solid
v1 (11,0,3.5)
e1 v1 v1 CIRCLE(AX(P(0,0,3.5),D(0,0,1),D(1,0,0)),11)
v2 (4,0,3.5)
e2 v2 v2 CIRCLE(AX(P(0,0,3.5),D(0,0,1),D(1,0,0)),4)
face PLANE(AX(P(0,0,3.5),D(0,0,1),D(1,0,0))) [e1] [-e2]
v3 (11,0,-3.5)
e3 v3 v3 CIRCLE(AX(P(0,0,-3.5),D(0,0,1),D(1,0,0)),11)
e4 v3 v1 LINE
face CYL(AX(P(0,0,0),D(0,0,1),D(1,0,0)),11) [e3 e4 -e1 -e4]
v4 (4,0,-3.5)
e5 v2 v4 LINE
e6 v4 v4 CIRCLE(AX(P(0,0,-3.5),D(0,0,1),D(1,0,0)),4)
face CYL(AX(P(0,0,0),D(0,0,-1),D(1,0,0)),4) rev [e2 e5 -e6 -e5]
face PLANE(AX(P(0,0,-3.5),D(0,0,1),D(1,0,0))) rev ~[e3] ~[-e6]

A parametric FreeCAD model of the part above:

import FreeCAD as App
import Part
import Sketcher

doc = App.newDocument("Part")
params = doc.addObject("Spreadsheet::Sheet", "Params")
for row, (alias, value) in enumerate([
    ("sketch1_diameter", "22 mm"),
    ("sketch1_diameter2", "8 mm"),
    ("pad1_length", "7 mm"),
], start=1):
    params.set(f"A{row}", alias)
    params.set(f"B{row}", "=" + value)
    params.setAlias(f"B{row}", alias)

body = doc.addObject("PartDesign::Body", "Body")

sketch1 = body.newObject("Sketcher::SketchObject", "Sketch")
sketch1.AttachmentSupport = (doc.getObject("XY_Plane"), [""])
sketch1.MapMode = "FlatFace"
sketch1.addGeometry([
    Part.Circle(App.Vector(0, 0, 0), App.Vector(0, 0, 1), 11),
    Part.Circle(App.Vector(0, 0, 0), App.Vector(0, 0, 1), 4),
], False)
sketch1.addConstraint([
    Sketcher.Constraint("Coincident", 0, 3, -1, 1),
    Sketcher.Constraint("Coincident", 1, 3, -1, 1),
    Sketcher.Constraint("Diameter", 0, 22.0),
    Sketcher.Constraint("Diameter", 1, 8.0),
])
sketch1.setExpression("Constraints[2]", "Params.sketch1_diameter")
sketch1.setExpression("Constraints[3]", "Params.sketch1_diameter2")
pad1 = body.newObject("PartDesign::Pad", "Pad")
pad1.Profile = sketch1
pad1.setExpression("Length", "Params.pad1_length")
pad1.Midplane = True

doc.recompute()
